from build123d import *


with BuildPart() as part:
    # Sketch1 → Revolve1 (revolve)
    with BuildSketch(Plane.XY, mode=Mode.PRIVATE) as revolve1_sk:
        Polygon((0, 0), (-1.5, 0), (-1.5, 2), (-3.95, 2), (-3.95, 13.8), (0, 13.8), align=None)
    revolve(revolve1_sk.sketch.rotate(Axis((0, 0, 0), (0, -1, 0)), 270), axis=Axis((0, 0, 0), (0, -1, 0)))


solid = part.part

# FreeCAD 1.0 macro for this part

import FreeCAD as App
import Part
import Sketcher
from FreeCAD import Vector
Q = App.Units.Quantity


def add_polygon(sketch, points):
    """Adds a closed chain of lines whose ends are joined by coincident constraints."""
    first, n = sketch.GeometryCount, len(points)
    for a, b in zip(points, points[1:] + points[:1]):
        sketch.addGeometry(Part.LineSegment(App.Vector(*a, 0), App.Vector(*b, 0)), False)
    for i in range(n):
        sketch.addConstraint(Sketcher.Constraint("Coincident", first + i, 2, first + (i + 1) % n, 1))

doc = App.newDocument("Part")
body = doc.addObject("PartDesign::Body", "Body")

# Sketch on XY plane
sketch1 = doc.addObject("Sketcher::SketchObject", "Sketch")
body.addObject(sketch1)
sketch1.AttachmentSupport = (doc.XY_Plane, [""])
sketch1.MapMode = "FlatFace"
add_polygon(sketch1, [(-1.5, 0), (0, 0), (0, 13.8), (-4, 13.8), (-4, 2), (-1.5, 2)])  # lines 0-5
sketch1.addConstraint(Sketcher.Constraint("Horizontal", 0))
sketch1.addConstraint(Sketcher.Constraint("Vertical", 1))
sketch1.addConstraint(Sketcher.Constraint("Horizontal", 2))
sketch1.addConstraint(Sketcher.Constraint("Vertical", 3))
sketch1.addConstraint(Sketcher.Constraint("Horizontal", 4))
sketch1.addConstraint(Sketcher.Constraint("Vertical", 5))
sketch1.addConstraint(Sketcher.Constraint("Coincident", 0, 2, -1, 1))
sketch1.addConstraint(Sketcher.Constraint("DistanceY", 5, 2, 5, 1, Q("2 mm")))
sketch1.addConstraint(Sketcher.Constraint("DistanceX", 0, 1, 0, 2, Q("1.5 mm")))
sketch1.addConstraint(Sketcher.Constraint("DistanceY", 1, 1, 1, 2, Q("13.8 mm")))
sketch1.addConstraint(Sketcher.Constraint("DistanceX", 2, 2, 2, 1, Q("3.95 mm")))
revolution = doc.addObject("PartDesign::Revolution", "Revolution")
body.addObject(revolution)
revolution.Profile = sketch1
revolution.ReferenceAxis = (sketch1, ["V_Axis"])
revolution.Angle = 360

doc.recompute()
